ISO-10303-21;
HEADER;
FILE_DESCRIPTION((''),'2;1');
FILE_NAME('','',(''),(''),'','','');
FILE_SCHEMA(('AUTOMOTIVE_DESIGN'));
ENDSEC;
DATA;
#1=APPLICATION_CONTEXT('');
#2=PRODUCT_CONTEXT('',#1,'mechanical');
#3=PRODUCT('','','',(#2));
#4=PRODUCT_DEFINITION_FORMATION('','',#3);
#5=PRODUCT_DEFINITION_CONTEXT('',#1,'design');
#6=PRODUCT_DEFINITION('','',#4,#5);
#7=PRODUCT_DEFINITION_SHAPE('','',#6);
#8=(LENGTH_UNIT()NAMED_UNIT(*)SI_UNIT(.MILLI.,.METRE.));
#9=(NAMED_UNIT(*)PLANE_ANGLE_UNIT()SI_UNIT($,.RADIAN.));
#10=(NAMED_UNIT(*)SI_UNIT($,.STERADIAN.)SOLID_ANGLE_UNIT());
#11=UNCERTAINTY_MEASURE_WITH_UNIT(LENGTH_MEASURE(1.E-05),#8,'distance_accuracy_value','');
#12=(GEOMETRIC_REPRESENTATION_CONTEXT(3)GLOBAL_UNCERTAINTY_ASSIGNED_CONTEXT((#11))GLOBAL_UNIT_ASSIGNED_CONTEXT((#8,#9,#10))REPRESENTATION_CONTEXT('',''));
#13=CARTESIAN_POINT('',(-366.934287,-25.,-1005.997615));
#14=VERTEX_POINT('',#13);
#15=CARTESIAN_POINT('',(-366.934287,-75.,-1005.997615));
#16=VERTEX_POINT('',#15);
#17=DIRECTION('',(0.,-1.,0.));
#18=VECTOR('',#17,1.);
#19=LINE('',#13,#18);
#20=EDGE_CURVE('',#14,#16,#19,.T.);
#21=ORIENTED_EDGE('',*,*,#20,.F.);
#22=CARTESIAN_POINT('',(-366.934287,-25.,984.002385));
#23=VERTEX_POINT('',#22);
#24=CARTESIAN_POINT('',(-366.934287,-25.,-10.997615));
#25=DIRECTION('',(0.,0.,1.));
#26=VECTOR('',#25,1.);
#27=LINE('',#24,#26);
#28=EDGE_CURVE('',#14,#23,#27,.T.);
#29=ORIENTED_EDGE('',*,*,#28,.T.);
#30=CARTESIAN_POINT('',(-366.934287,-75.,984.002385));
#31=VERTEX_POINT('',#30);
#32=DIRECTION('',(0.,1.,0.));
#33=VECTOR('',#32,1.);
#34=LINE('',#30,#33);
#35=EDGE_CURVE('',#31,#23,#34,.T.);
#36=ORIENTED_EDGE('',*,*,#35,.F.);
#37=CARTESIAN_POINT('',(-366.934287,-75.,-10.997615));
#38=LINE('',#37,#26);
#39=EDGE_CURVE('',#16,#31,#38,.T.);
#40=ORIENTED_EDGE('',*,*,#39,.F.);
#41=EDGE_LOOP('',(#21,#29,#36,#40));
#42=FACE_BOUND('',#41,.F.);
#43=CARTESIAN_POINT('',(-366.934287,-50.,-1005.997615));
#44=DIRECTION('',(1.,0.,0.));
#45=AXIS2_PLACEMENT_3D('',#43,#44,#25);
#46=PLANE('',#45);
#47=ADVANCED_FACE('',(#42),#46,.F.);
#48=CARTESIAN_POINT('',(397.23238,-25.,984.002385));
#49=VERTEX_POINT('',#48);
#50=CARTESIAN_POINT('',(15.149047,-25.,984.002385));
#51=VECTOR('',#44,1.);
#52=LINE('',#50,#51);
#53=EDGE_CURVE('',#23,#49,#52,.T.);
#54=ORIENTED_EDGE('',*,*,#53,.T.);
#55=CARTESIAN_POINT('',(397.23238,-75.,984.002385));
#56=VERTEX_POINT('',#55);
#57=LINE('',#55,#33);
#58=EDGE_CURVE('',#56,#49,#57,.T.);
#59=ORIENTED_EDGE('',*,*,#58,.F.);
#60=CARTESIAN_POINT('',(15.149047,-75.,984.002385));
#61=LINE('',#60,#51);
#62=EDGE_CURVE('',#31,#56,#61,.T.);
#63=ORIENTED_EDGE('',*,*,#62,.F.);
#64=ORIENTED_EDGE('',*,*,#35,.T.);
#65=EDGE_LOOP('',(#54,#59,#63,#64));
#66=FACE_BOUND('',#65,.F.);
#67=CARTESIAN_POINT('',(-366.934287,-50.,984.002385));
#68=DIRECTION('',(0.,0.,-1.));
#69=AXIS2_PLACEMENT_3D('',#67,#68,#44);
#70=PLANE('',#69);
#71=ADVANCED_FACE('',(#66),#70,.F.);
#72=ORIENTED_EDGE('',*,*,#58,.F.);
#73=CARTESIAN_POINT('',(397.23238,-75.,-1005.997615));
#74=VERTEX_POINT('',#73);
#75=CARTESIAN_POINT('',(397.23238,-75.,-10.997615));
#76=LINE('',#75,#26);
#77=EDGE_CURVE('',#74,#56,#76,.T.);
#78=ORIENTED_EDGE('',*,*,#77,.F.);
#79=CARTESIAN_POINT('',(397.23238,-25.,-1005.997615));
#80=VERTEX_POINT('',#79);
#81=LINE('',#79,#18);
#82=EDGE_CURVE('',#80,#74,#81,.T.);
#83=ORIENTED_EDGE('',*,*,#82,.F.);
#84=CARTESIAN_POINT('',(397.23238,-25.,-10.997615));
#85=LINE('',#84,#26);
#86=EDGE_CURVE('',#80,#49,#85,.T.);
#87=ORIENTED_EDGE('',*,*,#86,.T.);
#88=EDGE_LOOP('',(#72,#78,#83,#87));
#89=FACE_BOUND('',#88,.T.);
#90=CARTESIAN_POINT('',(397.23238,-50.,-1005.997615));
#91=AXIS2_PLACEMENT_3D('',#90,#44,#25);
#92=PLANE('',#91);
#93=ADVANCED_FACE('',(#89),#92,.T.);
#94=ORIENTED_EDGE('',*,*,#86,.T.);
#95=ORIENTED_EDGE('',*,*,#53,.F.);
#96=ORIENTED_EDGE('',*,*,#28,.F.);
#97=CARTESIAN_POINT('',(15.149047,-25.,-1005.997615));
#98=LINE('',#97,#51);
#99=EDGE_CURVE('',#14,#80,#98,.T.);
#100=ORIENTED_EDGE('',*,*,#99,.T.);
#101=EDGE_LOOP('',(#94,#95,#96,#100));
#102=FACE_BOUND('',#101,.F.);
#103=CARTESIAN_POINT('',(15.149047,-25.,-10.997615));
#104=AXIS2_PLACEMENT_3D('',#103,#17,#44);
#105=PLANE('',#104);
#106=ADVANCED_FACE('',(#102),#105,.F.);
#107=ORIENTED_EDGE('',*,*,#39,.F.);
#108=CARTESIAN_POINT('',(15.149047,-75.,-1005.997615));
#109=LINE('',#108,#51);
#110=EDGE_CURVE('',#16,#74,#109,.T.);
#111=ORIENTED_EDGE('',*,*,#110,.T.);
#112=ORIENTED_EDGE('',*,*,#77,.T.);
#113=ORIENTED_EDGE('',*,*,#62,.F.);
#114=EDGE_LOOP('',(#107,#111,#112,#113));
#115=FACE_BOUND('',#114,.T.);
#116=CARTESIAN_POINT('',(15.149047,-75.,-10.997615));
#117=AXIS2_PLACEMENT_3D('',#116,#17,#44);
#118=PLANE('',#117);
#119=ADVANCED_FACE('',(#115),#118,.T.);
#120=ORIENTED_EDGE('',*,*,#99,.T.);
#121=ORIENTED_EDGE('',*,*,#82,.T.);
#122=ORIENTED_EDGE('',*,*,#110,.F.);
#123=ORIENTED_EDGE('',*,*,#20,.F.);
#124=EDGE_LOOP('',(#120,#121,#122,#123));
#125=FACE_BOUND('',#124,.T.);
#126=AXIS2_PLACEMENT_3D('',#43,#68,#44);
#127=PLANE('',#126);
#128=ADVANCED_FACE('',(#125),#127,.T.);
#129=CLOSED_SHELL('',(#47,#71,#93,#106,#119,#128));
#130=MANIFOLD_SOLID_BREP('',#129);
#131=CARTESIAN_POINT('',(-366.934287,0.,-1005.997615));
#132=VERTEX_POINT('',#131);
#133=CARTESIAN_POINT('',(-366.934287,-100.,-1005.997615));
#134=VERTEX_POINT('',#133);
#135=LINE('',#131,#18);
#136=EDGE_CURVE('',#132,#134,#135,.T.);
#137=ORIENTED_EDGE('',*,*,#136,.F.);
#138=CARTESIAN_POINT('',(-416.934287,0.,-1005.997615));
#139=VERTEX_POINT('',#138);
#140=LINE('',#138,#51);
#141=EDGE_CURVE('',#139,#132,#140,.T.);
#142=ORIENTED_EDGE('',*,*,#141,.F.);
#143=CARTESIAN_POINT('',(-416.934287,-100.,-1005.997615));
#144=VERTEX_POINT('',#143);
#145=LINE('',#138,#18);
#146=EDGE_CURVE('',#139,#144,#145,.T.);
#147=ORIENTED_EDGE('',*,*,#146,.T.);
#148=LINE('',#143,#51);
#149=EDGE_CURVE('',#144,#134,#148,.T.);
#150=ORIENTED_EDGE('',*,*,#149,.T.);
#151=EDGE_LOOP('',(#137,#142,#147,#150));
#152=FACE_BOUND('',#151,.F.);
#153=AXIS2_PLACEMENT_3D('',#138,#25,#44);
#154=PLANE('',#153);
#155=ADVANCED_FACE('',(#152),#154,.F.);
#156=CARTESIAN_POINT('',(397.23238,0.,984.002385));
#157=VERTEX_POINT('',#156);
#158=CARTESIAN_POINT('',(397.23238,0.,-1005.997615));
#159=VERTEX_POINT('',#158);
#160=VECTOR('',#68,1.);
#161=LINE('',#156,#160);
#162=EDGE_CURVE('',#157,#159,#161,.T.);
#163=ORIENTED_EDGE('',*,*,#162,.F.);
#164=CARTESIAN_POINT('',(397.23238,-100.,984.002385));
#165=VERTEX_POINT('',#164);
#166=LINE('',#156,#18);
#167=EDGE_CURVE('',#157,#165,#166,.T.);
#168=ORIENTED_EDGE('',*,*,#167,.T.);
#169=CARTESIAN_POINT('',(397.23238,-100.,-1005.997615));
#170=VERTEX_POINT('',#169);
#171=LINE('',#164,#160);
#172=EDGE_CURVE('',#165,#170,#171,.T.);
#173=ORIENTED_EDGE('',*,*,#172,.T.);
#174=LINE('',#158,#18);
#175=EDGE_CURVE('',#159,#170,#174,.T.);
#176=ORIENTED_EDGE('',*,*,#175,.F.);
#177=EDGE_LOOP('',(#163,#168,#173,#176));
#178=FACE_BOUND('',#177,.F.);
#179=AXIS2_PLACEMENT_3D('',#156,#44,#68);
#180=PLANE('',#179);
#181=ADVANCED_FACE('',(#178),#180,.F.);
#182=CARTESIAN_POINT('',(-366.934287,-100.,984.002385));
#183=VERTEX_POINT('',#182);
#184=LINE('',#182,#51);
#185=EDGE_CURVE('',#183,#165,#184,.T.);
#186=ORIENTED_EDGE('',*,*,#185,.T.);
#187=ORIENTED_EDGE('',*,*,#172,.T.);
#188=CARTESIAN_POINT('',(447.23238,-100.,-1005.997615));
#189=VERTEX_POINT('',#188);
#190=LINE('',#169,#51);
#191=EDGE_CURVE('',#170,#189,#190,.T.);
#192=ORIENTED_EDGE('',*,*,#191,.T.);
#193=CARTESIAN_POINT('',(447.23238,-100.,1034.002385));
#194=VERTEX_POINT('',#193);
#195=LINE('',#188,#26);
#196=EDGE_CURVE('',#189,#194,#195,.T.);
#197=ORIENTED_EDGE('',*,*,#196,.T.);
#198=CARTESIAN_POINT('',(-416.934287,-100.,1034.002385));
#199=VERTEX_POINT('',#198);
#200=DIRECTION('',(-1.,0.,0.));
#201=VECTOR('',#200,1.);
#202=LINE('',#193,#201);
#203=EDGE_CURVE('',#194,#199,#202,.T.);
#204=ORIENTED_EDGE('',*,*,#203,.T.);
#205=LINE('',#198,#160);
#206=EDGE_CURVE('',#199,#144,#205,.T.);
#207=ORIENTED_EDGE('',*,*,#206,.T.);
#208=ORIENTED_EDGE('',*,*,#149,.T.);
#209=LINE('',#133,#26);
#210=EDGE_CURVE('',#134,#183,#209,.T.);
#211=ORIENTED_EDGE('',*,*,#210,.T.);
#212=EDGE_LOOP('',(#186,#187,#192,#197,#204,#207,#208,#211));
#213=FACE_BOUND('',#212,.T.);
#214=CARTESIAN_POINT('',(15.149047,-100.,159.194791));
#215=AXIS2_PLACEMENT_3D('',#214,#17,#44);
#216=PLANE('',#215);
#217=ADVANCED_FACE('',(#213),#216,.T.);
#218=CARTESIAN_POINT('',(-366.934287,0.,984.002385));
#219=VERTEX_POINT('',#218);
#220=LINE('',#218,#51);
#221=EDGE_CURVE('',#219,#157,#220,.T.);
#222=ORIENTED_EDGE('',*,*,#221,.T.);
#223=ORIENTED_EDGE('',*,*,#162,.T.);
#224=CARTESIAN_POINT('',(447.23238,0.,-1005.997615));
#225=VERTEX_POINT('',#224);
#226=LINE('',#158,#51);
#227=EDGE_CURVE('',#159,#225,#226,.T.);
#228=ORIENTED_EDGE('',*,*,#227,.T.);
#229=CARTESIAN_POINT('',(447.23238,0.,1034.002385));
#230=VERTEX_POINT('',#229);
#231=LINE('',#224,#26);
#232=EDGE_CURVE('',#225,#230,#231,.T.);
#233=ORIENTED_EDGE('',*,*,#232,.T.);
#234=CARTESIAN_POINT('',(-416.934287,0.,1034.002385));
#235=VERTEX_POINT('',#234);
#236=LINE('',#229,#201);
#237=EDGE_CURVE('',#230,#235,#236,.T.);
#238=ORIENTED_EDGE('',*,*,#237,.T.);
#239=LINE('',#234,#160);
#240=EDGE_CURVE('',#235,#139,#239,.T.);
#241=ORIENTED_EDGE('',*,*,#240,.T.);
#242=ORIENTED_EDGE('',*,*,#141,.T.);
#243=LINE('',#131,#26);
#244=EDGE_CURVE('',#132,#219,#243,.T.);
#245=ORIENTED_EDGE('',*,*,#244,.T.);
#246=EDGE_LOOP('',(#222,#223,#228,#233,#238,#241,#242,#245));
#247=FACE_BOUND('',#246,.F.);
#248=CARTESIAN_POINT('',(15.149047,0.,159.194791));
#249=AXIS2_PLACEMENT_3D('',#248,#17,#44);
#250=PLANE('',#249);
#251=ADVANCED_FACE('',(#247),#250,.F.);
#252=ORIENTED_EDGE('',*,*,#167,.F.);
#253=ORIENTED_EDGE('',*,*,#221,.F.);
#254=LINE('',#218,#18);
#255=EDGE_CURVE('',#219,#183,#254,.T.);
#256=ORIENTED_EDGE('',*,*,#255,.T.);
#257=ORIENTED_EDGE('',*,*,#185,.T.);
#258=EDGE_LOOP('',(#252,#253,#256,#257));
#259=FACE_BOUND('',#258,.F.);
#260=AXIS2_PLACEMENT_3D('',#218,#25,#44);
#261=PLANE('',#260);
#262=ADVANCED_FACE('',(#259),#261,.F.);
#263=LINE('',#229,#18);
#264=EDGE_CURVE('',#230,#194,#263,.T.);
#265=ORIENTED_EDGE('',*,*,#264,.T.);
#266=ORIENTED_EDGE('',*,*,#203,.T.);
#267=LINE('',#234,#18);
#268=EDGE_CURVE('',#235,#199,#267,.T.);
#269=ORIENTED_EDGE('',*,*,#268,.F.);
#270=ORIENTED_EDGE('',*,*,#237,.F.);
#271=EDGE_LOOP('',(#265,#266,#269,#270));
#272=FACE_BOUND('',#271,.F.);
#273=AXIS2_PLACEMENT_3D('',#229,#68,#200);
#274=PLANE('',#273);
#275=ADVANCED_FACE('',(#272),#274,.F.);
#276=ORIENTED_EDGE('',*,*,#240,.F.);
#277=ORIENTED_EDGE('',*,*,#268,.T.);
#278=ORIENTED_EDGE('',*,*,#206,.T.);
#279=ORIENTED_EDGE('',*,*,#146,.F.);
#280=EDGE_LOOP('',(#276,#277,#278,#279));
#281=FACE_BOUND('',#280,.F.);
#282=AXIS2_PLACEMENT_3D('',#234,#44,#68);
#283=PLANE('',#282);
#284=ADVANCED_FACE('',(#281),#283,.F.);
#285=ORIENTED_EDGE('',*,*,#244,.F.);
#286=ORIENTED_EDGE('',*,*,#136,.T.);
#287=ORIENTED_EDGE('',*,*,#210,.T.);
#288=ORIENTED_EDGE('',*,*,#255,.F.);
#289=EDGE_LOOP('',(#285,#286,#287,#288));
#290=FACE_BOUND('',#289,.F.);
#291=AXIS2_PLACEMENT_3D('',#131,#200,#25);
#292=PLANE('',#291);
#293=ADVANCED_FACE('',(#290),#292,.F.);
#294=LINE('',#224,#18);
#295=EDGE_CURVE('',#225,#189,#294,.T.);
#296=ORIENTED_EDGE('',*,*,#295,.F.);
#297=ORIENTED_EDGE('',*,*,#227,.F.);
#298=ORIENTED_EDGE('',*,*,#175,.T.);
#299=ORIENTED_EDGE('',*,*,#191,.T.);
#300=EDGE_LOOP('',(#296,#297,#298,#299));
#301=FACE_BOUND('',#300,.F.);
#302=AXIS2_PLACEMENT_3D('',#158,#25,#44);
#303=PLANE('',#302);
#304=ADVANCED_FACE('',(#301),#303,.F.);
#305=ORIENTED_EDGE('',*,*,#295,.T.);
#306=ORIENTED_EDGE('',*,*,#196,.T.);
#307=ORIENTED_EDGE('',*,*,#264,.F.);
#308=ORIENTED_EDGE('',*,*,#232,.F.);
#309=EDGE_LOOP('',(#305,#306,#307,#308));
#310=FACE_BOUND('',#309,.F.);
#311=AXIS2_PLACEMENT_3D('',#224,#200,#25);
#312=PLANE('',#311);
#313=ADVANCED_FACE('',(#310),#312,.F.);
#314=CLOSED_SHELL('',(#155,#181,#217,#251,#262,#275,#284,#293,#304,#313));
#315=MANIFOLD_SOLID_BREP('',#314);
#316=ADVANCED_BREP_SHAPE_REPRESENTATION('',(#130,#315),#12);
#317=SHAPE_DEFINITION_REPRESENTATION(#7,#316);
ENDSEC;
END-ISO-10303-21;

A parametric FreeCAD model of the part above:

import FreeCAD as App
import Part
import Sketcher

V = App.Vector

doc = App.newDocument("Part")
body = doc.addObject("PartDesign::Body", "Body")

# Sketch on XZ plane
sketch1 = body.newObject("Sketcher::SketchObject", "Sketch")
sketch1.AttachmentSupport = (doc.getObject("XZ_Plane"), [""])
sketch1.MapMode = "FlatFace"
sketch1.addGeometry([
    Part.LineSegment(V(447, 1034, 0), V(-417, 1034, 0)),  # 0
    Part.LineSegment(V(-417, 1034, 0), V(-417, -1006, 0)),  # 1
    Part.LineSegment(V(-417, -1006, 0), V(-367, -1006, 0)),  # 2
    Part.LineSegment(V(-367, -1006, 0), V(-367, 984, 0)),  # 3
    Part.LineSegment(V(-367, 984, 0), V(397, 984, 0)),  # 4
    Part.LineSegment(V(397, 984, 0), V(397, -1006, 0)),  # 5
    Part.LineSegment(V(397, -1006, 0), V(447, -1006, 0)),  # 6
    Part.LineSegment(V(447, -1006, 0), V(447, 1034, 0)),  # 7
], False)
sketch1.addConstraint([
    Sketcher.Constraint("Coincident", 0, 2, 1, 1),
    Sketcher.Constraint("Coincident", 1, 2, 2, 1),
    Sketcher.Constraint("Coincident", 2, 2, 3, 1),
    Sketcher.Constraint("Coincident", 3, 2, 4, 1),
    Sketcher.Constraint("Coincident", 4, 2, 5, 1),
    Sketcher.Constraint("Coincident", 5, 2, 6, 1),
    Sketcher.Constraint("Coincident", 6, 2, 7, 1),
    Sketcher.Constraint("Coincident", 7, 2, 0, 1),
    Sketcher.Constraint("Horizontal", 0),
    Sketcher.Constraint("Vertical", 1),
    Sketcher.Constraint("Horizontal", 2),
    Sketcher.Constraint("Vertical", 3),
    Sketcher.Constraint("Horizontal", 4),
    Sketcher.Constraint("Vertical", 5),
    Sketcher.Constraint("Horizontal", 6),
    Sketcher.Constraint("Vertical", 7),
    Sketcher.Constraint("Horizontal", 2, 2, 5, 2),
    Sketcher.Constraint("Equal", 2, 6),
    Sketcher.Constraint("DistanceX", 2, 1, 2, 2, 50.0),
    Sketcher.Constraint("DistanceY", 1, 2, 1, 1, 2040.0),
    Sketcher.Constraint("DistanceY", 3, 1, 3, 2, 1990.0),
    Sketcher.Constraint("DistanceX", 0, 2, 0, 1, 864.166667),
    Sketcher.Constraint("DistanceX", -1, 1, 4, 2, 397.23238),
    Sketcher.Constraint("DistanceY", -1, 1, 0, 2, 1034.002385),
])
pad1 = body.newObject("PartDesign::Pad", "Pad")
pad1.Profile = sketch1
pad1.Length = 100
body2 = doc.addObject("PartDesign::Body", "Body001")

# Sketch on XZ plane
sketch2 = body2.newObject("Sketcher::SketchObject", "Sketch001")
sketch2.AttachmentSupport = (doc.getObject("XZ_Plane001"), [""])
sketch2.MapMode = "FlatFace"
sketch2.AttachmentOffset = App.Placement(V(0, 0, 50), App.Rotation())
sketch2.addGeometry([
    Part.LineSegment(V(-367, 984, 0), V(-367, -1006, 0)),
    Part.LineSegment(V(-367, -1006, 0), V(397, -1006, 0)),
    Part.LineSegment(V(397, -1006, 0), V(397, 984, 0)),
    Part.LineSegment(V(397, 984, 0), V(-367, 984, 0)),
], False)
sketch2.addConstraint([
    Sketcher.Constraint("Coincident", 0, 2, 1, 1),
    Sketcher.Constraint("Coincident", 1, 2, 2, 1),
    Sketcher.Constraint("Coincident", 2, 2, 3, 1),
    Sketcher.Constraint("Coincident", 3, 2, 0, 1),
    Sketcher.Constraint("Vertical", 0),
    Sketcher.Constraint("Horizontal", 1),
    Sketcher.Constraint("Vertical", 2),
    Sketcher.Constraint("Horizontal", 3),
    Sketcher.Constraint("DistanceY", 0, 2, 0, 1, 1990.0),
    Sketcher.Constraint("DistanceX", 1, 1, 1, 2, 764.166667),
    Sketcher.Constraint("DistanceX", -1, 1, 1, 2, 397.23238),
    Sketcher.Constraint("DistanceY", 0, 2, -1, 1, 1005.997615),
])
pad2 = body2.newObject("PartDesign::Pad", "Pad001")
pad2.Profile = sketch2
pad2.Type = "TwoLengths"
pad2.Length = 25
pad2.Length2 = 25

doc.recompute()
